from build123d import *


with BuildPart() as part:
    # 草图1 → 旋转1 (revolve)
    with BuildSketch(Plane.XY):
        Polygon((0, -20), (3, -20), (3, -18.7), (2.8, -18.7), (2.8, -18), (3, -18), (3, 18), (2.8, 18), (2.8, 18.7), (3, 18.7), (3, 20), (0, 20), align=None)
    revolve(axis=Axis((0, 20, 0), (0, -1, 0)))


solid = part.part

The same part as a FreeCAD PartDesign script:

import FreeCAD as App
import Part
import Sketcher
from FreeCAD import Vector

doc = App.newDocument("Part")
body = doc.addObject("PartDesign::Body", "Body")

# Sketch on XY plane
sketch1 = body.newObject("Sketcher::SketchObject", "Sketch")
sketch1.AttachmentSupport = (doc.getObject("XY_Plane"), [""])
sketch1.MapMode = "FlatFace"
sketch1.addGeometry([
    Part.LineSegment(Vector(0, -20, 0), Vector(3, -20, 0)),  # 0
    Part.LineSegment(Vector(3, -20, 0), Vector(3, -18.7, 0)),  # 1
    Part.LineSegment(Vector(3, -18.7, 0), Vector(2.8, -18.7, 0)),  # 2
    Part.LineSegment(Vector(2.8, -18.7, 0), Vector(2.8, -18, 0)),  # 3
    Part.LineSegment(Vector(2.8, -18, 0), Vector(3, -18, 0)),  # 4
    Part.LineSegment(Vector(3, -18, 0), Vector(3, 18, 0)),  # 5
    Part.LineSegment(Vector(3, 18, 0), Vector(2.8, 18, 0)),  # 6
    Part.LineSegment(Vector(2.8, 18, 0), Vector(2.8, 18.7, 0)),  # 7
    Part.LineSegment(Vector(2.8, 18.7, 0), Vector(3, 18.7, 0)),  # 8
    Part.LineSegment(Vector(3, 18.7, 0), Vector(3, 20, 0)),  # 9
    Part.LineSegment(Vector(3, 20, 0), Vector(0, 20, 0)),  # 10
    Part.LineSegment(Vector(0, 20, 0), Vector(0, -20, 0)),  # 11
], False)
sketch1.addConstraint([
    Sketcher.Constraint("Coincident", 0, 2, 1, 1),
    Sketcher.Constraint("Coincident", 1, 2, 2, 1),
    Sketcher.Constraint("Coincident", 2, 2, 3, 1),
    Sketcher.Constraint("Coincident", 3, 2, 4, 1),
    Sketcher.Constraint("Coincident", 4, 2, 5, 1),
    Sketcher.Constraint("Coincident", 5, 2, 6, 1),
    Sketcher.Constraint("Coincident", 6, 2, 7, 1),
    Sketcher.Constraint("Coincident", 7, 2, 8, 1),
    Sketcher.Constraint("Coincident", 8, 2, 9, 1),
    Sketcher.Constraint("Coincident", 9, 2, 10, 1),
    Sketcher.Constraint("Coincident", 10, 2, 11, 1),
    Sketcher.Constraint("Coincident", 11, 2, 0, 1),
    Sketcher.Constraint("Horizontal", 0),
    Sketcher.Constraint("Vertical", 1),
    Sketcher.Constraint("Horizontal", 2),
    Sketcher.Constraint("Vertical", 3),
    Sketcher.Constraint("Horizontal", 4),
    Sketcher.Constraint("Vertical", 5),
    Sketcher.Constraint("Horizontal", 6),
    Sketcher.Constraint("Vertical", 7),
    Sketcher.Constraint("Horizontal", 8),
    Sketcher.Constraint("Vertical", 9),
    Sketcher.Constraint("Horizontal", 10),
    Sketcher.Constraint("Vertical", 11),
    Sketcher.Constraint("Symmetric", 10, 2, 11, 2, -1, 1),
    Sketcher.Constraint("Symmetric", 3, 2, 6, 2, -1),
    Sketcher.Constraint("Symmetric", 1, 2, 8, 2, -1),
    Sketcher.Constraint("Vertical", 1, 2, 4, 2),
    Sketcher.Constraint("DistanceX", 0, 1, 0, 2, 3.0),
    Sketcher.Constraint("DistanceY", 5, 1, 5, 2, 36.0),
    Sketcher.Constraint("DistanceY", 11, 2, 11, 1, 40.0),
    Sketcher.Constraint("DistanceX", 2, 2, 2, 1, 0.2),
    Sketcher.Constraint("DistanceY", 1, 1, 1, 2, 1.3),
])
revolution = body.newObject("PartDesign::Revolution", "Revolution")
revolution.Profile = sketch1
revolution.ReferenceAxis = (sketch1, ["V_Axis"])
revolution.Angle = 360

doc.recompute()
